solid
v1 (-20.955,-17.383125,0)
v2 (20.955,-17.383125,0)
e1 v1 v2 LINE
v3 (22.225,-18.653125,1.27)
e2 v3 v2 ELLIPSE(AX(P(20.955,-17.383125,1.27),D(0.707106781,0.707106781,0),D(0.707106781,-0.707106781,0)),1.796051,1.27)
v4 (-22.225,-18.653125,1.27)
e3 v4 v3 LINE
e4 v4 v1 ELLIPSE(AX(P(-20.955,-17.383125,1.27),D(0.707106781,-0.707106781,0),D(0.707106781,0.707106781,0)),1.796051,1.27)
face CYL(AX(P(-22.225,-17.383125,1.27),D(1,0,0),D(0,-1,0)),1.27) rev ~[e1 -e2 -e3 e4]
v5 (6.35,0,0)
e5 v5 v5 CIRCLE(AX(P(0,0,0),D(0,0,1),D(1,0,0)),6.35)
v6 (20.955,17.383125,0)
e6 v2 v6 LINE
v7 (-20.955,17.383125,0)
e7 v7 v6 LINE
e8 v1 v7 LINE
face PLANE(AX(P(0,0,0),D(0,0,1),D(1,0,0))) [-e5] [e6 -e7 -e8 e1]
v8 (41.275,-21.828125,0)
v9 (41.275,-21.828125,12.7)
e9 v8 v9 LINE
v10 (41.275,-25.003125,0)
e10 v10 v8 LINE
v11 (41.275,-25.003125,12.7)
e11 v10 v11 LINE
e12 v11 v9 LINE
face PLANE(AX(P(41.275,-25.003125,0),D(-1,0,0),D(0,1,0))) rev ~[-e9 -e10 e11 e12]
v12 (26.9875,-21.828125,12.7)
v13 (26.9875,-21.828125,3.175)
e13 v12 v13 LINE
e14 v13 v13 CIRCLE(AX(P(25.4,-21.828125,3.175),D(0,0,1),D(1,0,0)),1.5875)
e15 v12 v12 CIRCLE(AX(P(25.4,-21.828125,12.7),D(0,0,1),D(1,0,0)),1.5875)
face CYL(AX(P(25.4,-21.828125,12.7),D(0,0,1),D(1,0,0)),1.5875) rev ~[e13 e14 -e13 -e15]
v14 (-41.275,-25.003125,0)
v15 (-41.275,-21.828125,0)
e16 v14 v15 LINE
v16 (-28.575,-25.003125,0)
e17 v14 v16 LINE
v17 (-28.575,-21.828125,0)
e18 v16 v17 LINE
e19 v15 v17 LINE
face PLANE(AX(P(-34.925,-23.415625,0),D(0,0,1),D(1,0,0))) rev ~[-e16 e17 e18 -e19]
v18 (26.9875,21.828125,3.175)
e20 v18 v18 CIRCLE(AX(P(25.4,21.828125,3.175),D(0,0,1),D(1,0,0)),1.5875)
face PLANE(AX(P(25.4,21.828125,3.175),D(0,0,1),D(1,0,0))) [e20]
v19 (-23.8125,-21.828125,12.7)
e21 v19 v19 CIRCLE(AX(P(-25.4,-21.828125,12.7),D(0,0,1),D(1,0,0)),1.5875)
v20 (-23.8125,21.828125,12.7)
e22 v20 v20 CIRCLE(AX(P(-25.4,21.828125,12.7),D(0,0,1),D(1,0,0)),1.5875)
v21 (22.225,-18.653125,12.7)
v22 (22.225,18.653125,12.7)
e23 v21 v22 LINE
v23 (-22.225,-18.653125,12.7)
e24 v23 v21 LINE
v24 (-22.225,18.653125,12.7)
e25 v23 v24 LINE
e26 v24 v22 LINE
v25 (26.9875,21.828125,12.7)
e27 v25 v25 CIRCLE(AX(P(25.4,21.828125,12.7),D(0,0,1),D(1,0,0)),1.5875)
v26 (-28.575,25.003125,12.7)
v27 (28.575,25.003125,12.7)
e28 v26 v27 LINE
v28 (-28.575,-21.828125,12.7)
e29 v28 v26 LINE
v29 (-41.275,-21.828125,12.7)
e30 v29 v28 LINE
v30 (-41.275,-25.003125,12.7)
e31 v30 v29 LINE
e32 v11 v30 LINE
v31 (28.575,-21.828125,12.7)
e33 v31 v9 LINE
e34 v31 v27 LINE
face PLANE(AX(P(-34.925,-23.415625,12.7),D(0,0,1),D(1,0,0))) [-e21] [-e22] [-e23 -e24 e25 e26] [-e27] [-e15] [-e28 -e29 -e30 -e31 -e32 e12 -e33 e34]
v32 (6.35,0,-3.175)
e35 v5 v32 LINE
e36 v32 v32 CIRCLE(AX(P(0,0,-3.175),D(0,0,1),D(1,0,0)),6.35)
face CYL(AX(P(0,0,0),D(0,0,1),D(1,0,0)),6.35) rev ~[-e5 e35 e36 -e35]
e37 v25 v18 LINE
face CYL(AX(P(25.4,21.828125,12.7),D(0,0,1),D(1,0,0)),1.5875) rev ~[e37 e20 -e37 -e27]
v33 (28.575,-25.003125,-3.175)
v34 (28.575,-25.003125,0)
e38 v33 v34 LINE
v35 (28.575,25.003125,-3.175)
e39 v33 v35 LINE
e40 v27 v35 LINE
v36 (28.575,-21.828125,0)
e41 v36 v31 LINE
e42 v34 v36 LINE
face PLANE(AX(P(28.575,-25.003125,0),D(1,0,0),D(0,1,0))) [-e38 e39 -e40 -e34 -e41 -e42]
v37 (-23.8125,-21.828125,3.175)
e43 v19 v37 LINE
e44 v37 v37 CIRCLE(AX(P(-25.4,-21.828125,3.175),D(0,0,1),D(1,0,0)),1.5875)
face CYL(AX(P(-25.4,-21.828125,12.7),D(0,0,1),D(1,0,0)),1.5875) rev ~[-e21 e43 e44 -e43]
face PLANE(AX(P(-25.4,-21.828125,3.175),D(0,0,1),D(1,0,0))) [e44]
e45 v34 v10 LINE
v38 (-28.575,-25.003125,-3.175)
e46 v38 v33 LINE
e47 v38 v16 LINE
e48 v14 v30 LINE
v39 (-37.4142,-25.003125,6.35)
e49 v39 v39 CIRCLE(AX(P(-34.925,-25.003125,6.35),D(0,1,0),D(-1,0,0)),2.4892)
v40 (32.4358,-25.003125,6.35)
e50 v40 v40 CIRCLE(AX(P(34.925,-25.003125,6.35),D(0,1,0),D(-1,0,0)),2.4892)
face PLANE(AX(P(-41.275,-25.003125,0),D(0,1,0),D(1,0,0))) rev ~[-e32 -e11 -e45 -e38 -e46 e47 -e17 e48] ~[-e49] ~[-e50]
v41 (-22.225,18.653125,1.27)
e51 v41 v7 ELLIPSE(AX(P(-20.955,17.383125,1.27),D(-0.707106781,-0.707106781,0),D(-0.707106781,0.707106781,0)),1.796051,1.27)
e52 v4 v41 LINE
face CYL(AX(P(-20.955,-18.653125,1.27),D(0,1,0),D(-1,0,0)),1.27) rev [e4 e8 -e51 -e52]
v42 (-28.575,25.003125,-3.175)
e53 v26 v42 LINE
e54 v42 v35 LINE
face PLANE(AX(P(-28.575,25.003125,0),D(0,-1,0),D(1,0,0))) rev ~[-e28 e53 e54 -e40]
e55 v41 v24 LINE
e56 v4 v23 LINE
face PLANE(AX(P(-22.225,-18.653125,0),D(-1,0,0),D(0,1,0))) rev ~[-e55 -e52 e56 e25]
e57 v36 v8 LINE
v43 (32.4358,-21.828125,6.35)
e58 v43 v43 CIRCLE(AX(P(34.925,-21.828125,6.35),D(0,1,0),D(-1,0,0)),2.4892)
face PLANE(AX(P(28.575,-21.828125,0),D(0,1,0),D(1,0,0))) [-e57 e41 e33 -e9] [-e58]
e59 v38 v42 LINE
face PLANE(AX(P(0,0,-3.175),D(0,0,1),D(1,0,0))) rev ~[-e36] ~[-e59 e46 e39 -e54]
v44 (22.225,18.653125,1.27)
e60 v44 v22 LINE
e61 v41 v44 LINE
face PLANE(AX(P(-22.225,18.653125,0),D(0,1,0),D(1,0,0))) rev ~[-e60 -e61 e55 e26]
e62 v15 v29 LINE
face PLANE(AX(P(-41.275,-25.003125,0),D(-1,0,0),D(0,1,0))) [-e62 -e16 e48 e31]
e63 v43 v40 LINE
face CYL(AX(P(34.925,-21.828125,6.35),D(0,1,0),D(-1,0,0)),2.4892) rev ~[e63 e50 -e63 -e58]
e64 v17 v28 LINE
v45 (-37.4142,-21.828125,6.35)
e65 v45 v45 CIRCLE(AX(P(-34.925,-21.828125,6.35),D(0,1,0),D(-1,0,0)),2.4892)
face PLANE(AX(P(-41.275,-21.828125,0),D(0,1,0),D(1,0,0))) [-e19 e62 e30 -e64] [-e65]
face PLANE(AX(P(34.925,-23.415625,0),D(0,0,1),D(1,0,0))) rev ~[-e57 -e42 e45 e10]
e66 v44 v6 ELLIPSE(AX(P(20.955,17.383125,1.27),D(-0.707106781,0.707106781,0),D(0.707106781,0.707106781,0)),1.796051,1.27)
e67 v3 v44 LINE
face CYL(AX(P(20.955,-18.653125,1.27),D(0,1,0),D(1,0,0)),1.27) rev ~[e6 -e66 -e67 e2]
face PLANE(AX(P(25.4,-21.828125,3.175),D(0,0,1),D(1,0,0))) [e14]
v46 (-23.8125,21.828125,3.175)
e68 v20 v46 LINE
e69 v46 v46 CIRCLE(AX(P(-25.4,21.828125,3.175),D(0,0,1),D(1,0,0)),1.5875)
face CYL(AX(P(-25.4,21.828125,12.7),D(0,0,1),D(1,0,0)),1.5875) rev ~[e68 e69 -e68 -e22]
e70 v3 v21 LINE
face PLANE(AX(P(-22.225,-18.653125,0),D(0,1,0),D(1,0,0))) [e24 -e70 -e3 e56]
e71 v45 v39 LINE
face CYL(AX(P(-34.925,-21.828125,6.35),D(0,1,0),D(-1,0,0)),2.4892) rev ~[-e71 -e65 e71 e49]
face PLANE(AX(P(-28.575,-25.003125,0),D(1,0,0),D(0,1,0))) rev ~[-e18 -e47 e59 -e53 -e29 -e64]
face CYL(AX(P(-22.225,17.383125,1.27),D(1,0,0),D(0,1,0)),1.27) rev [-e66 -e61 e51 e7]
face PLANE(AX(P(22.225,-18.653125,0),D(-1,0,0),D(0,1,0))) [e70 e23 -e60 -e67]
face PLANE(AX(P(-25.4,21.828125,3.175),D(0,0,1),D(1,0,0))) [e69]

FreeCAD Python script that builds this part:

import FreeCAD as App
import Part
import Sketcher

V = App.Vector
Q = App.Units.Quantity


def edges_at(feature, points):
    """Names of the edges that pass closest to the given points."""
    edges = feature.Shape.Edges
    near = lambda p: min(range(len(edges)), key=lambda i: edges[i].distToShape(Part.Vertex(*p))[0])
    return sorted({f"Edge{near(p) + 1}" for p in points})

doc = App.newDocument("Part")
params = doc.addObject("Spreadsheet::Sheet", "Params")
for row, (alias, value) in enumerate([
    ("sketch1_width", "2.25 in"),
    ("sketch1_height", "1.96875 in"),
    ("sketch1_height2", "1.46875 in"),
    ("pad1_length", "0.5 in"),
    ("sketch2_diameter", "0.5 in"),
    ("sketch2_width", "2.25 in"),
    ("sketch2_height", "1.96875 in"),
    ("pad2_length", "0.125 in"),
    ("sketch3_width", "0.5 in"),
    ("sketch3_height", "0.125 in"),
    ("pad3_length", "0.5 in"),
    ("sketch4_diameter", "0.196 in"),
    ("pocket1_length", "0.125 in"),
    ("fillet_radius", "0.05 in"),
    ("sketch5_diameter", "0.125 in"),
    ("pocket2_length", "0.375 in"),
], start=1):
    params.set(f"A{row}", alias)
    params.set(f"B{row}", "=" + value)
    params.setAlias(f"B{row}", alias)

body = doc.addObject("PartDesign::Body", "Body")

# Sketch on XY plane
sketch1 = body.newObject("Sketcher::SketchObject", "Sketch")
sketch1.AttachmentSupport = (doc.getObject("XY_Plane"), [""])
sketch1.MapMode = "FlatFace"
sketch1.addGeometry(Part.LineSegment(V(-28.575, 25.003125, 0), V(-28.575, -25.003125, 0)), False)
sketch1.addGeometry(Part.LineSegment(V(-28.575, -25.003125, 0), V(28.575, -25.003125, 0)), False)
sketch1.addGeometry(Part.LineSegment(V(28.575, -25.003125, 0), V(28.575, 25.003125, 0)), False)
sketch1.addGeometry(Part.LineSegment(V(28.575, 25.003125, 0), V(-28.575, 25.003125, 0)), False)
sketch1.addGeometry(Part.LineSegment(V(22.225, -18.653125, 0), V(-22.225, -18.653125, 0)), False)
sketch1.addGeometry(Part.LineSegment(V(-22.225, -18.653125, 0), V(-22.225, 18.653125, 0)), False)
sketch1.addGeometry(Part.LineSegment(V(-22.225, 18.653125, 0), V(22.225, 18.653125, 0)), False)
sketch1.addGeometry(Part.LineSegment(V(22.225, 18.653125, 0), V(22.225, -18.653125, 0)), False)
sketch1.addConstraint(Sketcher.Constraint("Coincident", 0, 2, 1, 1))
sketch1.addConstraint(Sketcher.Constraint("Coincident", 1, 2, 2, 1))
sketch1.addConstraint(Sketcher.Constraint("Coincident", 2, 2, 3, 1))
sketch1.addConstraint(Sketcher.Constraint("Coincident", 3, 2, 0, 1))
sketch1.addConstraint(Sketcher.Constraint("Coincident", 4, 2, 5, 1))
sketch1.addConstraint(Sketcher.Constraint("Coincident", 5, 2, 6, 1))
sketch1.addConstraint(Sketcher.Constraint("Coincident", 6, 2, 7, 1))
sketch1.addConstraint(Sketcher.Constraint("Coincident", 7, 2, 4, 1))
sketch1.addConstraint(Sketcher.Constraint("Vertical", 0))
sketch1.addConstraint(Sketcher.Constraint("Horizontal", 1))
sketch1.addConstraint(Sketcher.Constraint("Vertical", 2))
sketch1.addConstraint(Sketcher.Constraint("Horizontal", 3))
sketch1.addConstraint(Sketcher.Constraint("Horizontal", 4))
sketch1.addConstraint(Sketcher.Constraint("Vertical", 5))
sketch1.addConstraint(Sketcher.Constraint("Horizontal", 6))
sketch1.addConstraint(Sketcher.Constraint("Vertical", 7))
sketch1.addConstraint(Sketcher.Constraint("Symmetric", 0, 2, 2, 2, -1, 1))
sketch1.addConstraint(Sketcher.Constraint("Symmetric", 4, 2, 6, 2, -1, 1))
sketch1.addConstraint(Sketcher.Constraint("DistanceX", 4, 2, 1, 2, Q("2 in")))
sketch1.addConstraint(Sketcher.Constraint("DistanceX", 1, 1, 1, 2, Q("2.25 in")))
sketch1.addConstraint(Sketcher.Constraint("DistanceY", 0, 2, 0, 1, Q("1.96875 in")))
sketch1.addConstraint(Sketcher.Constraint("DistanceY", 5, 1, 5, 2, Q("1.46875 in")))
sketch1.setExpression("Constraints[19]", "Params.sketch1_width")
sketch1.setExpression("Constraints[20]", "Params.sketch1_height")
sketch1.setExpression("Constraints[21]", "Params.sketch1_height2")
pad1 = body.newObject("PartDesign::Pad", "Pad")
pad1.Profile = sketch1
pad1.setExpression("Length", "Params.pad1_length")

# Sketch on XY plane
sketch2 = body.newObject("Sketcher::SketchObject", "Sketch001")
sketch2.AttachmentSupport = (doc.getObject("XY_Plane"), [""])
sketch2.MapMode = "FlatFace"
sketch2.addGeometry(Part.LineSegment(V(-28.575, 25.003125, 0), V(-28.575, -25.003125, 0)), False)
sketch2.addGeometry(Part.LineSegment(V(-28.575, -25.003125, 0), V(28.575, -25.003125, 0)), False)
sketch2.addGeometry(Part.LineSegment(V(28.575, -25.003125, 0), V(28.575, 25.003125, 0)), False)
sketch2.addGeometry(Part.LineSegment(V(28.575, 25.003125, 0), V(-28.575, 25.003125, 0)), False)
sketch2.addGeometry(Part.Circle(V(0, 0, 0), V(0, 0, 1), 6.35), False)
sketch2.addConstraint(Sketcher.Constraint("Coincident", 0, 2, 1, 1))
sketch2.addConstraint(Sketcher.Constraint("Coincident", 1, 2, 2, 1))
sketch2.addConstraint(Sketcher.Constraint("Coincident", 2, 2, 3, 1))
sketch2.addConstraint(Sketcher.Constraint("Coincident", 3, 2, 0, 1))
sketch2.addConstraint(Sketcher.Constraint("Vertical", 0))
sketch2.addConstraint(Sketcher.Constraint("Horizontal", 1))
sketch2.addConstraint(Sketcher.Constraint("Vertical", 2))
sketch2.addConstraint(Sketcher.Constraint("Horizontal", 3))
sketch2.addConstraint(Sketcher.Constraint("Coincident", 4, 3, -1, 1))
sketch2.addConstraint(Sketcher.Constraint("Symmetric", 0, 2, 2, 2, -1, 1))
sketch2.addConstraint(Sketcher.Constraint("Diameter", 4, Q("0.5 in")))
sketch2.addConstraint(Sketcher.Constraint("DistanceX", 1, 1, 1, 2, Q("2.25 in")))
sketch2.addConstraint(Sketcher.Constraint("DistanceY", 0, 2, 0, 1, Q("1.96875 in")))
sketch2.setExpression("Constraints[10]", "Params.sketch2_diameter")
sketch2.setExpression("Constraints[11]", "Params.sketch2_width")
sketch2.setExpression("Constraints[12]", "Params.sketch2_height")
pad2 = body.newObject("PartDesign::Pad", "Pad001")
pad2.Profile = sketch2
pad2.setExpression("Length", "Params.pad2_length")
pad2.Reversed = True

# Sketch on XY plane
sketch3 = body.newObject("Sketcher::SketchObject", "Sketch002")
sketch3.AttachmentSupport = (doc.getObject("XY_Plane"), [""])
sketch3.MapMode = "FlatFace"
sketch3.addGeometry(Part.LineSegment(V(-41.275, -21.828125, 0), V(-41.275, -25.003125, 0)), False)
sketch3.addGeometry(Part.LineSegment(V(-41.275, -25.003125, 0), V(-28.575, -25.003125, 0)), False)
sketch3.addGeometry(Part.LineSegment(V(-28.575, -25.003125, 0), V(-28.575, -21.828125, 0)), False)
sketch3.addGeometry(Part.LineSegment(V(-28.575, -21.828125, 0), V(-41.275, -21.828125, 0)), False)
sketch3.addGeometry(Part.LineSegment(V(28.575, -21.828125, 0), V(28.575, -25.003125, 0)), False)
sketch3.addGeometry(Part.LineSegment(V(28.575, -25.003125, 0), V(41.275, -25.003125, 0)), False)
sketch3.addGeometry(Part.LineSegment(V(41.275, -25.003125, 0), V(41.275, -21.828125, 0)), False)
sketch3.addGeometry(Part.LineSegment(V(41.275, -21.828125, 0), V(28.575, -21.828125, 0)), False)
sketch3.addConstraint(Sketcher.Constraint("Coincident", 0, 2, 1, 1))
sketch3.addConstraint(Sketcher.Constraint("Coincident", 1, 2, 2, 1))
sketch3.addConstraint(Sketcher.Constraint("Coincident", 2, 2, 3, 1))
sketch3.addConstraint(Sketcher.Constraint("Coincident", 3, 2, 0, 1))
sketch3.addConstraint(Sketcher.Constraint("Coincident", 4, 2, 5, 1))
sketch3.addConstraint(Sketcher.Constraint("Coincident", 5, 2, 6, 1))
sketch3.addConstraint(Sketcher.Constraint("Coincident", 6, 2, 7, 1))
sketch3.addConstraint(Sketcher.Constraint("Coincident", 7, 2, 4, 1))
sketch3.addConstraint(Sketcher.Constraint("Vertical", 0))
sketch3.addConstraint(Sketcher.Constraint("Horizontal", 1))
sketch3.addConstraint(Sketcher.Constraint("Vertical", 2))
sketch3.addConstraint(Sketcher.Constraint("Horizontal", 3))
sketch3.addConstraint(Sketcher.Constraint("Vertical", 4))
sketch3.addConstraint(Sketcher.Constraint("Horizontal", 5))
sketch3.addConstraint(Sketcher.Constraint("Vertical", 6))
sketch3.addConstraint(Sketcher.Constraint("Horizontal", 7))
sketch3.addConstraint(Sketcher.Constraint("Symmetric", 1, 2, 4, 2, -2))
sketch3.addConstraint(Sketcher.Constraint("Symmetric", 3, 2, 6, 2, -2))
sketch3.addConstraint(Sketcher.Constraint("DistanceX", 1, 1, 1, 2, Q("0.5 in")))
sketch3.addConstraint(Sketcher.Constraint("DistanceY", 0, 2, 0, 1, Q("0.125 in")))
sketch3.addConstraint(Sketcher.Constraint("DistanceX", 1, 2, 4, 2, Q("2.25 in")))
sketch3.addConstraint(Sketcher.Constraint("DistanceY", 0, 2, -1, 1, Q("0.984375 in")))
sketch3.setExpression("Constraints[18]", "Params.sketch3_width")
sketch3.setExpression("Constraints[19]", "Params.sketch3_height")
pad3 = body.newObject("PartDesign::Pad", "Pad002")
pad3.Profile = sketch3
pad3.setExpression("Length", "Params.pad3_length")

# Sketch on XZ plane
sketch4 = body.newObject("Sketcher::SketchObject", "Sketch003")
sketch4.AttachmentSupport = (doc.getObject("XZ_Plane"), [""])
sketch4.MapMode = "FlatFace"
sketch4.AttachmentOffset = App.Placement(V(0, 0, 0.859375 * 25.4), App.Rotation())
sketch4.addGeometry(Part.Circle(V(-34.925, 6.35, 0), V(0, 0, 1), 2.4892), False)
sketch4.addGeometry(Part.Circle(V(34.925, 6.35, 0), V(0, 0, 1), 2.4892), False)
sketch4.addConstraint(Sketcher.Constraint("Equal", 0, 1))
sketch4.addConstraint(Sketcher.Constraint("Symmetric", 0, 3, 1, 3, -2))
sketch4.addConstraint(Sketcher.Constraint("Diameter", 0, Q("0.196 in")))
sketch4.addConstraint(Sketcher.Constraint("DistanceY", -1, 1, 0, 3, Q("0.25 in")))
sketch4.addConstraint(Sketcher.Constraint("DistanceX", 0, 3, 1, 3, Q("2.75 in")))
sketch4.setExpression("Constraints[2]", "Params.sketch4_diameter")
pocket1 = body.newObject("PartDesign::Pocket", "Pocket")
pocket1.Profile = sketch4
pocket1.setExpression("Length", "Params.pocket1_length")
pocket1.Reversed = True
doc.recompute()

fillet = body.newObject("PartDesign::Fillet", "Fillet")
fillet.Base = (pocket1, edges_at(pocket1, [
    (-22.225, 0, 0),
    (0, -18.653, 0),
    (22.225, 0, 0),
    (0, 18.653, 0),
]))
fillet.setExpression("Radius", "Params.fillet_radius")

# Sketch on XY plane
sketch5 = body.newObject("Sketcher::SketchObject", "Sketch004")
sketch5.AttachmentSupport = (doc.getObject("XY_Plane"), [""])
sketch5.MapMode = "FlatFace"
sketch5.AttachmentOffset = App.Placement(V(0, 0, 0.5 * 25.4), App.Rotation())
sketch5.addGeometry(Part.Circle(V(-25.4, 21.828125, 0), V(0, 0, 1), 1.5875), False)
sketch5.addGeometry(Part.Circle(V(25.4, 21.828125, 0), V(0, 0, 1), 1.5875), False)
sketch5.addGeometry(Part.Circle(V(25.4, -21.828125, 0), V(0, 0, 1), 1.5875), False)
sketch5.addGeometry(Part.Circle(V(-25.4, -21.828125, 0), V(0, 0, 1), 1.5875), False)
sketch5.addConstraint(Sketcher.Constraint("Equal", 0, 1))
sketch5.addConstraint(Sketcher.Constraint("Equal", 1, 2))
sketch5.addConstraint(Sketcher.Constraint("Equal", 2, 3))
sketch5.addConstraint(Sketcher.Constraint("Symmetric", 0, 3, 2, 3, -1, 1))
sketch5.addConstraint(Sketcher.Constraint("Symmetric", 1, 3, 3, 3, -1, 1))
sketch5.addConstraint(Sketcher.Constraint("Symmetric", 0, 3, 1, 3, -2))
sketch5.addConstraint(Sketcher.Constraint("Diameter", 0, Q("0.125 in")))
sketch5.addConstraint(Sketcher.Constraint("DistanceX", 0, 3, -1, 1, Q("1 in")))
sketch5.addConstraint(Sketcher.Constraint("DistanceY", -1, 1, 0, 3, Q("0.859375 in")))
sketch5.setExpression("Constraints[6]", "Params.sketch5_diameter")
pocket2 = body.newObject("PartDesign::Pocket", "Pocket001")
pocket2.Profile = sketch5
pocket2.setExpression("Length", "Params.pocket2_length")

doc.recompute()
